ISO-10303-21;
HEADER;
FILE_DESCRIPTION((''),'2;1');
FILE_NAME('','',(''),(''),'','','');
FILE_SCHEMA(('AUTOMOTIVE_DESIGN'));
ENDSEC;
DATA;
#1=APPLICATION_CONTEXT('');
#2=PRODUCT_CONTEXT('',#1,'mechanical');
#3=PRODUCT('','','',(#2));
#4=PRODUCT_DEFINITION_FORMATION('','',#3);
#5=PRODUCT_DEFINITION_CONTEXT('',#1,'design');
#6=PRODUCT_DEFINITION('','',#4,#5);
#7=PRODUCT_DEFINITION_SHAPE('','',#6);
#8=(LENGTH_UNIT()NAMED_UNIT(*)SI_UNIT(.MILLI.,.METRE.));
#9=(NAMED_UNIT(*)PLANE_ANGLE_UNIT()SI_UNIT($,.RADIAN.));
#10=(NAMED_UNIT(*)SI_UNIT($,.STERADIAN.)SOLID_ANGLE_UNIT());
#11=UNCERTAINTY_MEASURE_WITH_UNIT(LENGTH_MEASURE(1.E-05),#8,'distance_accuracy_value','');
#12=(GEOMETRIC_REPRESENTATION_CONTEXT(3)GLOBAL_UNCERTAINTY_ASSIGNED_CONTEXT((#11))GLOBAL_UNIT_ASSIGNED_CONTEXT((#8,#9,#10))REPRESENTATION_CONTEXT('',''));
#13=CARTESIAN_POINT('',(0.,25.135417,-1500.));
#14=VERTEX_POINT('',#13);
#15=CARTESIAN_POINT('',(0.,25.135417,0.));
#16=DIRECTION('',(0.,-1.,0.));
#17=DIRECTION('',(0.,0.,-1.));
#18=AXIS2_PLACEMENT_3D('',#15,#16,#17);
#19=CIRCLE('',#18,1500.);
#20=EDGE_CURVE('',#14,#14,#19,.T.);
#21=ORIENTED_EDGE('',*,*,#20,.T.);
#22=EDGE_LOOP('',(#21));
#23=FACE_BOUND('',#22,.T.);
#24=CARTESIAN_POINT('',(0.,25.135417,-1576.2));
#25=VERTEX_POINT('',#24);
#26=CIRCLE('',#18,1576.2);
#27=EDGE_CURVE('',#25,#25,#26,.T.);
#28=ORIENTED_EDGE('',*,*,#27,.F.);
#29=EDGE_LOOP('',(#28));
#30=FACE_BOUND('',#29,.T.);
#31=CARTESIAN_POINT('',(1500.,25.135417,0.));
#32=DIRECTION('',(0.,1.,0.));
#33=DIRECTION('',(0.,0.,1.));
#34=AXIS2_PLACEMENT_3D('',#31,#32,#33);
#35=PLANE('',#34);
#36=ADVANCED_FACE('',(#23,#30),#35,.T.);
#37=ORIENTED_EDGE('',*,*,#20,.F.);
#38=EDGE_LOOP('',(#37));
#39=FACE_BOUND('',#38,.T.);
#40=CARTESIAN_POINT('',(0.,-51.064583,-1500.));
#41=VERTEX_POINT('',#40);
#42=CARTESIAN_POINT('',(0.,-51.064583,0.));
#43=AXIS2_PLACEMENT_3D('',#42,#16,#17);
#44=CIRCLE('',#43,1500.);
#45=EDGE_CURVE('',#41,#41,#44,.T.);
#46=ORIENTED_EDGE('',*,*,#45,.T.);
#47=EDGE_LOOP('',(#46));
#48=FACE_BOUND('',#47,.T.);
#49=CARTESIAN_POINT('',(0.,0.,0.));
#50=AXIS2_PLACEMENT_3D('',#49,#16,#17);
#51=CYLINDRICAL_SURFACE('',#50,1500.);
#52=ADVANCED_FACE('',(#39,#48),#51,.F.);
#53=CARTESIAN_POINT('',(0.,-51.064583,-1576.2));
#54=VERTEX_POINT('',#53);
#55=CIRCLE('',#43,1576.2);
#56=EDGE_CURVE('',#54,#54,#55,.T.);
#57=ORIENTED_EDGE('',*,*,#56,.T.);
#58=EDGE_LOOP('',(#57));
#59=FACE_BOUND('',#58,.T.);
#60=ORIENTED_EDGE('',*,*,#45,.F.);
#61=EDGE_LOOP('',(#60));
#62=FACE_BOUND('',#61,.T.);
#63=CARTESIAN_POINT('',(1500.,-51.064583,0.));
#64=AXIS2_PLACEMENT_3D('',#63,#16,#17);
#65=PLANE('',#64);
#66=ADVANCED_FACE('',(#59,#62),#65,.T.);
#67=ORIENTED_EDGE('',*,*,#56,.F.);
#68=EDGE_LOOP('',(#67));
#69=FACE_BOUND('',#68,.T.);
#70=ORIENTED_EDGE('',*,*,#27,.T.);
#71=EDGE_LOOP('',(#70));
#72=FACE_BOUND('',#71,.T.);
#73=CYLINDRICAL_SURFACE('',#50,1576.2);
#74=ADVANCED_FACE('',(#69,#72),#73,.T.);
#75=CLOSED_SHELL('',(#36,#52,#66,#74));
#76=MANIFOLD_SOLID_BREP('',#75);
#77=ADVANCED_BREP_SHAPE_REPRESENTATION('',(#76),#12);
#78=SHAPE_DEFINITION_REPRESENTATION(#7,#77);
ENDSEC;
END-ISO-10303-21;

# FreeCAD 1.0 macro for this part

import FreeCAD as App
import Part
import Sketcher
from FreeCAD import Vector
Q = App.Units.Quantity


def add_polygon(sketch, points):
    """Adds a closed chain of lines whose ends are joined by coincident constraints."""
    first, n = sketch.GeometryCount, len(points)
    for a, b in zip(points, points[1:] + points[:1]):
        sketch.addGeometry(Part.LineSegment(App.Vector(*a, 0), App.Vector(*b, 0)), False)
    for i in range(n):
        sketch.addConstraint(Sketcher.Constraint("Coincident", first + i, 2, first + (i + 1) % n, 1))

doc = App.newDocument("Part")
body = doc.addObject("PartDesign::Body", "Body")

# Sketch on XY plane
sketch1 = doc.addObject("Sketcher::SketchObject", "Sketch")
body.addObject(sketch1)
sketch1.AttachmentSupport = (doc.XY_Plane, [""])
sketch1.MapMode = "FlatFace"
add_polygon(sketch1, [(1500, 25.135417), (1500, -51.064583), (1576.2, -51.064583), (1576.2, 25.135417)])  # lines 0-3
sketch1.addConstraint([
    Sketcher.Constraint("Vertical", 0),
    Sketcher.Constraint("Horizontal", 1),
    Sketcher.Constraint("Vertical", 2),
    Sketcher.Constraint("Horizontal", 3),
    Sketcher.Constraint("Equal", 3, 0),
    Sketcher.Constraint("DistanceX", 1, 1, 1, 2, Q("3 in")),
    Sketcher.Constraint("DistanceX", -1, 1, 0, 2, Q("1500 mm")),
    Sketcher.Constraint("DistanceY", 0, 2, -1, 1, Q("51.064583 mm")),
])
revolution = doc.addObject("PartDesign::Revolution", "Revolution")
body.addObject(revolution)
revolution.Profile = sketch1
revolution.ReferenceAxis = (sketch1, ["V_Axis"])
revolution.Angle = 360

doc.recompute()
